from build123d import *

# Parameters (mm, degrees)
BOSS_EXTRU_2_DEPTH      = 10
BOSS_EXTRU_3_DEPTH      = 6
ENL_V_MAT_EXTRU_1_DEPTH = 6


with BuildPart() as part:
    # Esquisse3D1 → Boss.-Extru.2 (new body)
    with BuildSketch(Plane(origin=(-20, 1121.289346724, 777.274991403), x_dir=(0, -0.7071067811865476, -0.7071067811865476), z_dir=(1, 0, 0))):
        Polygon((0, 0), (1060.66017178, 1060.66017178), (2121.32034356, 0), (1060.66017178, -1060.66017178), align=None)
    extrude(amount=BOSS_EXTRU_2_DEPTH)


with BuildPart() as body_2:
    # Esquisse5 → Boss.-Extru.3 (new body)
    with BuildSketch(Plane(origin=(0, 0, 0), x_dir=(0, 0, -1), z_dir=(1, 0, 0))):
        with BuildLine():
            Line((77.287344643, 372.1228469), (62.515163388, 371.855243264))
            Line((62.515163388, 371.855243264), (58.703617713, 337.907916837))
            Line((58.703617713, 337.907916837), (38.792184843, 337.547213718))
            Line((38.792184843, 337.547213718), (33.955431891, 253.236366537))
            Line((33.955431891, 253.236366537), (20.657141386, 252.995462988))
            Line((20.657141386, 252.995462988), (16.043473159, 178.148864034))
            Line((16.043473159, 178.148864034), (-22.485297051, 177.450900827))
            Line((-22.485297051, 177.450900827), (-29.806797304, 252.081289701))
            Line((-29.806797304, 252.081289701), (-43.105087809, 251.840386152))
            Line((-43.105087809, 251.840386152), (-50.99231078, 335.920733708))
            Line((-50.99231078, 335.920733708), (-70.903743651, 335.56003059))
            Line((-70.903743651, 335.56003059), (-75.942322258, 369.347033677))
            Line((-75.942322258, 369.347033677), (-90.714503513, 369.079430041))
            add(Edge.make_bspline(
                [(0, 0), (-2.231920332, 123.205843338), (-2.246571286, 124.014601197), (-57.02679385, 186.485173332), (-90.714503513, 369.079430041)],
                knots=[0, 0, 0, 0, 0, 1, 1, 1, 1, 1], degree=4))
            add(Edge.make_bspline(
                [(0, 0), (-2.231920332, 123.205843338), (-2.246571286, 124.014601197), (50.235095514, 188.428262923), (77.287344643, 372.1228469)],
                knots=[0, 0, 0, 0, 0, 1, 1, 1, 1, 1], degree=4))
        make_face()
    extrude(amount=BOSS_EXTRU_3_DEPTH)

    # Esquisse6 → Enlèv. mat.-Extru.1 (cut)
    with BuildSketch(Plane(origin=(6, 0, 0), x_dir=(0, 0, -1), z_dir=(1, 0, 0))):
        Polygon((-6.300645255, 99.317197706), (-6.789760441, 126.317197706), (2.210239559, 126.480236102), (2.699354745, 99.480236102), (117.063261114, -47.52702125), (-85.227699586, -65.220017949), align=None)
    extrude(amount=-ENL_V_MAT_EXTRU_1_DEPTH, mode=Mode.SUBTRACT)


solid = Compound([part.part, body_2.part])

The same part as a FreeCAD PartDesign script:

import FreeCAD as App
import Part
import Sketcher
from FreeCAD import Vector
Q = App.Units.Quantity

doc = App.newDocument("Part")
body = doc.addObject("PartDesign::Body", "Body")

sketch1 = body.newObject("Sketcher::SketchObject", "Sketch")
sketch1.AttachmentSupport = (doc.getObject("YZ_Plane"), [""])
sketch1.MapMode = "FlatFace"
sketch1.AttachmentOffset = App.Placement(Vector(0, 0, -20), App.Rotation())
sketch1.addGeometry([
    Part.LineSegment(Vector(1121, -723, 0), Vector(1121, 777, 0)),
    Part.LineSegment(Vector(1121, 777, 0), Vector(-379, 777, 0)),
    Part.LineSegment(Vector(-379, 777, 0), Vector(-379, -723, 0)),
    Part.LineSegment(Vector(-379, -723, 0), Vector(1121, -723, 0)),
], False)
sketch1.addConstraint([
    Sketcher.Constraint("Coincident", 0, 2, 1, 1),
    Sketcher.Constraint("Coincident", 1, 2, 2, 1),
    Sketcher.Constraint("Coincident", 2, 2, 3, 1),
    Sketcher.Constraint("Coincident", 3, 2, 0, 1),
    Sketcher.Constraint("Vertical", 0),
    Sketcher.Constraint("Horizontal", 1),
    Sketcher.Constraint("Vertical", 2),
    Sketcher.Constraint("Horizontal", 3),
    Sketcher.Constraint("Equal", 3, 0),
    Sketcher.Constraint("DistanceX", 1, 2, 1, 1, Q("1500 mm")),
    Sketcher.Constraint("DistanceY", -1, 1, 0, 2, Q("777.274991 mm")),
    Sketcher.Constraint("DistanceX", -1, 1, 0, 2, Q("1121.289347 mm")),
])
pad1 = body.newObject("PartDesign::Pad", "Pad")
pad1.Profile = sketch1
pad1.Length = 10
body2 = doc.addObject("PartDesign::Body", "Body001")

sketch2 = body2.newObject("Sketcher::SketchObject", "Sketch001")
sketch2.AttachmentSupport = (doc.getObject("YZ_Plane001"), [""])
sketch2.MapMode = "FlatFace"
sketch2.addGeometry([
    Part.LineSegment(Vector(372.122847, -77.287345, 0), Vector(371.855243, -62.515163, 0)),
    Part.LineSegment(Vector(371.855243, -62.515163, 0), Vector(337.907917, -58.703618, 0)),
    Part.LineSegment(Vector(337.907917, -58.703618, 0), Vector(337.547214, -38.792185, 0)),
    Part.LineSegment(Vector(337.547214, -38.792185, 0), Vector(253.236367, -33.955432, 0)),
    Part.LineSegment(Vector(253.236367, -33.955432, 0), Vector(252.995463, -20.657141, 0)),
    Part.LineSegment(Vector(252.995463, -20.657141, 0), Vector(178.148864, -16.043473, 0)),
    Part.LineSegment(Vector(178.148864, -16.043473, 0), Vector(177.450901, 22.485297, 0)),
    Part.LineSegment(Vector(177.450901, 22.485297, 0), Vector(252.08129, 29.806797, 0)),
    Part.LineSegment(Vector(252.08129, 29.806797, 0), Vector(251.840386, 43.105088, 0)),
    Part.LineSegment(Vector(251.840386, 43.105088, 0), Vector(335.920734, 50.992311, 0)),
    Part.LineSegment(Vector(335.920734, 50.992311, 0), Vector(335.560031, 70.903744, 0)),
    Part.LineSegment(Vector(335.560031, 70.903744, 0), Vector(369.347034, 75.942322, 0)),
    Part.LineSegment(Vector(369.347034, 75.942322, 0), Vector(369.07943, 90.714504, 0)),
    Part.BSplineCurve([Vector(0, 0, 0), Vector(123.205843, 2.23192, 0), Vector(124.014601, 2.246571, 0), Vector(186.485173, 57.026794, 0), Vector(369.07943, 90.714504, 0)], [5, 5], [0, 1], False, 4, [1, 1, 1, 1, 1], False),
    Part.BSplineCurve([Vector(0, 0, 0), Vector(123.205843, 2.23192, 0), Vector(124.014601, 2.246571, 0), Vector(188.428263, -50.235096, 0), Vector(372.122847, -77.287345, 0)], [5, 5], [0, 1], False, 4, [1, 1, 1, 1, 1], False),
], False)
sketch2.addConstraint([
    Sketcher.Constraint("Block", 13),
    Sketcher.Constraint("Block", 14),
    Sketcher.Constraint("Coincident", 0, 2, 1, 1),
    Sketcher.Constraint("Coincident", 1, 2, 2, 1),
    Sketcher.Constraint("Coincident", 2, 2, 3, 1),
    Sketcher.Constraint("Coincident", 3, 2, 4, 1),
    Sketcher.Constraint("Coincident", 4, 2, 5, 1),
    Sketcher.Constraint("Coincident", 5, 2, 6, 1),
    Sketcher.Constraint("Coincident", 6, 2, 7, 1),
    Sketcher.Constraint("Coincident", 7, 2, 8, 1),
    Sketcher.Constraint("Coincident", 8, 2, 9, 1),
    Sketcher.Constraint("Coincident", 9, 2, 10, 1),
    Sketcher.Constraint("Coincident", 10, 2, 11, 1),
    Sketcher.Constraint("Coincident", 11, 2, 12, 1),
    Sketcher.Constraint("Coincident", 12, 2, 13, 2),
    Sketcher.Constraint("Coincident", 14, 2, 0, 1),
    Sketcher.Constraint("Distance", 2, Q("19.9147 mm")),
    Sketcher.Constraint("Distance", 10, Q("19.9147 mm")),
    Sketcher.Constraint("DistanceX", -1, 1, 6, 2, Q("177.450901 mm")),
    Sketcher.Constraint("DistanceX", 5, 2, 4, 2, Q("74.846599 mm")),
    Sketcher.Constraint("DistanceY", 6, 2, 7, 2, Q("7.3215 mm")),
    Sketcher.Constraint("DistanceX", 9, 2, 11, 2, Q("33.4263 mm")),
    Sketcher.Constraint("DistanceX", 10, 2, 12, 2, Q("33.519399 mm")),
    Sketcher.Constraint("Distance", 3, Q("84.449471 mm")),
    Sketcher.Constraint("Distance", 5, Q("74.988661 mm")),
    Sketcher.Constraint("Distance", 6, Q("38.535092 mm")),
    Sketcher.Constraint("Distance", 7, Q("74.988661 mm")),
    Sketcher.Constraint("Distance", 9, Q("84.449471 mm")),
    Sketcher.Constraint("DistanceY", 3, 2, -1, 1, Q("33.955432 mm")),
    Sketcher.Constraint("DistanceY", 4, 2, -1, 1, Q("20.657141 mm")),
    Sketcher.Constraint("DistanceY", -1, 1, 9, 2, Q("50.992311 mm")),
    Sketcher.Constraint("DistanceX", 2, 2, 0, 2, Q("34.30803 mm")),
    Sketcher.Constraint("DistanceY", 0, 2, 2, 2, Q("23.722979 mm")),
    Sketcher.Constraint("DistanceX", 3, 2, 1, 2, Q("84.67155 mm")),
    Sketcher.Constraint("DistanceY", 0, 2, 3, 2, Q("28.559731 mm")),
    Sketcher.Constraint("DistanceX", 4, 2, 2, 2, Q("84.551751 mm")),
    Sketcher.Constraint("DistanceY", 5, 2, 6, 2, Q("38.52877 mm")),
    Sketcher.Constraint("DistanceY", 7, 2, 8, 2, Q("13.298291 mm")),
    Sketcher.Constraint("DistanceX", 8, 2, 3, 2, Q("1.39598 mm")),
    Sketcher.Constraint("DistanceY", 10, 2, 11, 2, Q("5.038579 mm")),
])
pad2 = body2.newObject("PartDesign::Pad", "Pad001")
pad2.Profile = sketch2
pad2.Length = 6

sketch3 = body2.newObject("Sketcher::SketchObject", "Sketch002")
sketch3.AttachmentSupport = (doc.getObject("YZ_Plane001"), [""])
sketch3.MapMode = "FlatFace"
sketch3.AttachmentOffset = App.Placement(Vector(0, 0, 6), App.Rotation())
sketch3.addGeometry([
    Part.LineSegment(Vector(126, 7, 0), Vector(99, 6, 0)),
    Part.LineSegment(Vector(99, 6, 0), Vector(-65, 85, 0)),
    Part.LineSegment(Vector(-65, 85, 0), Vector(-48, -117, 0)),
    Part.LineSegment(Vector(-48, -117, 0), Vector(99, -3, 0)),
    Part.LineSegment(Vector(99, -3, 0), Vector(126, -2, 0)),
    Part.LineSegment(Vector(126, -2, 0), Vector(126, 7, 0)),
], False)
sketch3.addConstraint([
    Sketcher.Constraint("Coincident", 0, 2, 1, 1),
    Sketcher.Constraint("Coincident", 1, 2, 2, 1),
    Sketcher.Constraint("Coincident", 2, 2, 3, 1),
    Sketcher.Constraint("Coincident", 3, 2, 4, 1),
    Sketcher.Constraint("Coincident", 4, 2, 5, 1),
    Sketcher.Constraint("Coincident", 5, 2, 0, 1),
    Sketcher.Constraint("Parallel", 0, 4),
    Sketcher.Constraint("Perpendicular", 4, 5),
    Sketcher.Constraint("Equal", 0, 4),
    Sketcher.Constraint("DistanceY", 3, 2, 0, 2, Q("9 mm")),
    Sketcher.Constraint("DistanceX", 3, 2, 4, 2, Q("27 mm")),
    Sketcher.Constraint("DistanceY", -1, 1, 1, 2, Q("85.2277 mm")),
    Sketcher.Constraint("Distance", 0, Q("27.00443 mm")),
    Sketcher.Constraint("Distance", 2, Q("203.063229 mm")),
    Sketcher.Constraint("DistanceX", 2, 2, -1, 1, Q("47.527021 mm")),
    Sketcher.Constraint("DistanceY", 2, 2, -1, 1, Q("117.063261 mm")),
    Sketcher.Constraint("DistanceY", 4, 2, -1, 1, Q("2.21024 mm")),
    Sketcher.Constraint("DistanceX", 2, 2, 0, 2, Q("146.844219 mm")),
])
pocket1 = body2.newObject("PartDesign::Pocket", "Pocket")
pocket1.Profile = sketch3
pocket1.Length = 6

doc.recompute()
